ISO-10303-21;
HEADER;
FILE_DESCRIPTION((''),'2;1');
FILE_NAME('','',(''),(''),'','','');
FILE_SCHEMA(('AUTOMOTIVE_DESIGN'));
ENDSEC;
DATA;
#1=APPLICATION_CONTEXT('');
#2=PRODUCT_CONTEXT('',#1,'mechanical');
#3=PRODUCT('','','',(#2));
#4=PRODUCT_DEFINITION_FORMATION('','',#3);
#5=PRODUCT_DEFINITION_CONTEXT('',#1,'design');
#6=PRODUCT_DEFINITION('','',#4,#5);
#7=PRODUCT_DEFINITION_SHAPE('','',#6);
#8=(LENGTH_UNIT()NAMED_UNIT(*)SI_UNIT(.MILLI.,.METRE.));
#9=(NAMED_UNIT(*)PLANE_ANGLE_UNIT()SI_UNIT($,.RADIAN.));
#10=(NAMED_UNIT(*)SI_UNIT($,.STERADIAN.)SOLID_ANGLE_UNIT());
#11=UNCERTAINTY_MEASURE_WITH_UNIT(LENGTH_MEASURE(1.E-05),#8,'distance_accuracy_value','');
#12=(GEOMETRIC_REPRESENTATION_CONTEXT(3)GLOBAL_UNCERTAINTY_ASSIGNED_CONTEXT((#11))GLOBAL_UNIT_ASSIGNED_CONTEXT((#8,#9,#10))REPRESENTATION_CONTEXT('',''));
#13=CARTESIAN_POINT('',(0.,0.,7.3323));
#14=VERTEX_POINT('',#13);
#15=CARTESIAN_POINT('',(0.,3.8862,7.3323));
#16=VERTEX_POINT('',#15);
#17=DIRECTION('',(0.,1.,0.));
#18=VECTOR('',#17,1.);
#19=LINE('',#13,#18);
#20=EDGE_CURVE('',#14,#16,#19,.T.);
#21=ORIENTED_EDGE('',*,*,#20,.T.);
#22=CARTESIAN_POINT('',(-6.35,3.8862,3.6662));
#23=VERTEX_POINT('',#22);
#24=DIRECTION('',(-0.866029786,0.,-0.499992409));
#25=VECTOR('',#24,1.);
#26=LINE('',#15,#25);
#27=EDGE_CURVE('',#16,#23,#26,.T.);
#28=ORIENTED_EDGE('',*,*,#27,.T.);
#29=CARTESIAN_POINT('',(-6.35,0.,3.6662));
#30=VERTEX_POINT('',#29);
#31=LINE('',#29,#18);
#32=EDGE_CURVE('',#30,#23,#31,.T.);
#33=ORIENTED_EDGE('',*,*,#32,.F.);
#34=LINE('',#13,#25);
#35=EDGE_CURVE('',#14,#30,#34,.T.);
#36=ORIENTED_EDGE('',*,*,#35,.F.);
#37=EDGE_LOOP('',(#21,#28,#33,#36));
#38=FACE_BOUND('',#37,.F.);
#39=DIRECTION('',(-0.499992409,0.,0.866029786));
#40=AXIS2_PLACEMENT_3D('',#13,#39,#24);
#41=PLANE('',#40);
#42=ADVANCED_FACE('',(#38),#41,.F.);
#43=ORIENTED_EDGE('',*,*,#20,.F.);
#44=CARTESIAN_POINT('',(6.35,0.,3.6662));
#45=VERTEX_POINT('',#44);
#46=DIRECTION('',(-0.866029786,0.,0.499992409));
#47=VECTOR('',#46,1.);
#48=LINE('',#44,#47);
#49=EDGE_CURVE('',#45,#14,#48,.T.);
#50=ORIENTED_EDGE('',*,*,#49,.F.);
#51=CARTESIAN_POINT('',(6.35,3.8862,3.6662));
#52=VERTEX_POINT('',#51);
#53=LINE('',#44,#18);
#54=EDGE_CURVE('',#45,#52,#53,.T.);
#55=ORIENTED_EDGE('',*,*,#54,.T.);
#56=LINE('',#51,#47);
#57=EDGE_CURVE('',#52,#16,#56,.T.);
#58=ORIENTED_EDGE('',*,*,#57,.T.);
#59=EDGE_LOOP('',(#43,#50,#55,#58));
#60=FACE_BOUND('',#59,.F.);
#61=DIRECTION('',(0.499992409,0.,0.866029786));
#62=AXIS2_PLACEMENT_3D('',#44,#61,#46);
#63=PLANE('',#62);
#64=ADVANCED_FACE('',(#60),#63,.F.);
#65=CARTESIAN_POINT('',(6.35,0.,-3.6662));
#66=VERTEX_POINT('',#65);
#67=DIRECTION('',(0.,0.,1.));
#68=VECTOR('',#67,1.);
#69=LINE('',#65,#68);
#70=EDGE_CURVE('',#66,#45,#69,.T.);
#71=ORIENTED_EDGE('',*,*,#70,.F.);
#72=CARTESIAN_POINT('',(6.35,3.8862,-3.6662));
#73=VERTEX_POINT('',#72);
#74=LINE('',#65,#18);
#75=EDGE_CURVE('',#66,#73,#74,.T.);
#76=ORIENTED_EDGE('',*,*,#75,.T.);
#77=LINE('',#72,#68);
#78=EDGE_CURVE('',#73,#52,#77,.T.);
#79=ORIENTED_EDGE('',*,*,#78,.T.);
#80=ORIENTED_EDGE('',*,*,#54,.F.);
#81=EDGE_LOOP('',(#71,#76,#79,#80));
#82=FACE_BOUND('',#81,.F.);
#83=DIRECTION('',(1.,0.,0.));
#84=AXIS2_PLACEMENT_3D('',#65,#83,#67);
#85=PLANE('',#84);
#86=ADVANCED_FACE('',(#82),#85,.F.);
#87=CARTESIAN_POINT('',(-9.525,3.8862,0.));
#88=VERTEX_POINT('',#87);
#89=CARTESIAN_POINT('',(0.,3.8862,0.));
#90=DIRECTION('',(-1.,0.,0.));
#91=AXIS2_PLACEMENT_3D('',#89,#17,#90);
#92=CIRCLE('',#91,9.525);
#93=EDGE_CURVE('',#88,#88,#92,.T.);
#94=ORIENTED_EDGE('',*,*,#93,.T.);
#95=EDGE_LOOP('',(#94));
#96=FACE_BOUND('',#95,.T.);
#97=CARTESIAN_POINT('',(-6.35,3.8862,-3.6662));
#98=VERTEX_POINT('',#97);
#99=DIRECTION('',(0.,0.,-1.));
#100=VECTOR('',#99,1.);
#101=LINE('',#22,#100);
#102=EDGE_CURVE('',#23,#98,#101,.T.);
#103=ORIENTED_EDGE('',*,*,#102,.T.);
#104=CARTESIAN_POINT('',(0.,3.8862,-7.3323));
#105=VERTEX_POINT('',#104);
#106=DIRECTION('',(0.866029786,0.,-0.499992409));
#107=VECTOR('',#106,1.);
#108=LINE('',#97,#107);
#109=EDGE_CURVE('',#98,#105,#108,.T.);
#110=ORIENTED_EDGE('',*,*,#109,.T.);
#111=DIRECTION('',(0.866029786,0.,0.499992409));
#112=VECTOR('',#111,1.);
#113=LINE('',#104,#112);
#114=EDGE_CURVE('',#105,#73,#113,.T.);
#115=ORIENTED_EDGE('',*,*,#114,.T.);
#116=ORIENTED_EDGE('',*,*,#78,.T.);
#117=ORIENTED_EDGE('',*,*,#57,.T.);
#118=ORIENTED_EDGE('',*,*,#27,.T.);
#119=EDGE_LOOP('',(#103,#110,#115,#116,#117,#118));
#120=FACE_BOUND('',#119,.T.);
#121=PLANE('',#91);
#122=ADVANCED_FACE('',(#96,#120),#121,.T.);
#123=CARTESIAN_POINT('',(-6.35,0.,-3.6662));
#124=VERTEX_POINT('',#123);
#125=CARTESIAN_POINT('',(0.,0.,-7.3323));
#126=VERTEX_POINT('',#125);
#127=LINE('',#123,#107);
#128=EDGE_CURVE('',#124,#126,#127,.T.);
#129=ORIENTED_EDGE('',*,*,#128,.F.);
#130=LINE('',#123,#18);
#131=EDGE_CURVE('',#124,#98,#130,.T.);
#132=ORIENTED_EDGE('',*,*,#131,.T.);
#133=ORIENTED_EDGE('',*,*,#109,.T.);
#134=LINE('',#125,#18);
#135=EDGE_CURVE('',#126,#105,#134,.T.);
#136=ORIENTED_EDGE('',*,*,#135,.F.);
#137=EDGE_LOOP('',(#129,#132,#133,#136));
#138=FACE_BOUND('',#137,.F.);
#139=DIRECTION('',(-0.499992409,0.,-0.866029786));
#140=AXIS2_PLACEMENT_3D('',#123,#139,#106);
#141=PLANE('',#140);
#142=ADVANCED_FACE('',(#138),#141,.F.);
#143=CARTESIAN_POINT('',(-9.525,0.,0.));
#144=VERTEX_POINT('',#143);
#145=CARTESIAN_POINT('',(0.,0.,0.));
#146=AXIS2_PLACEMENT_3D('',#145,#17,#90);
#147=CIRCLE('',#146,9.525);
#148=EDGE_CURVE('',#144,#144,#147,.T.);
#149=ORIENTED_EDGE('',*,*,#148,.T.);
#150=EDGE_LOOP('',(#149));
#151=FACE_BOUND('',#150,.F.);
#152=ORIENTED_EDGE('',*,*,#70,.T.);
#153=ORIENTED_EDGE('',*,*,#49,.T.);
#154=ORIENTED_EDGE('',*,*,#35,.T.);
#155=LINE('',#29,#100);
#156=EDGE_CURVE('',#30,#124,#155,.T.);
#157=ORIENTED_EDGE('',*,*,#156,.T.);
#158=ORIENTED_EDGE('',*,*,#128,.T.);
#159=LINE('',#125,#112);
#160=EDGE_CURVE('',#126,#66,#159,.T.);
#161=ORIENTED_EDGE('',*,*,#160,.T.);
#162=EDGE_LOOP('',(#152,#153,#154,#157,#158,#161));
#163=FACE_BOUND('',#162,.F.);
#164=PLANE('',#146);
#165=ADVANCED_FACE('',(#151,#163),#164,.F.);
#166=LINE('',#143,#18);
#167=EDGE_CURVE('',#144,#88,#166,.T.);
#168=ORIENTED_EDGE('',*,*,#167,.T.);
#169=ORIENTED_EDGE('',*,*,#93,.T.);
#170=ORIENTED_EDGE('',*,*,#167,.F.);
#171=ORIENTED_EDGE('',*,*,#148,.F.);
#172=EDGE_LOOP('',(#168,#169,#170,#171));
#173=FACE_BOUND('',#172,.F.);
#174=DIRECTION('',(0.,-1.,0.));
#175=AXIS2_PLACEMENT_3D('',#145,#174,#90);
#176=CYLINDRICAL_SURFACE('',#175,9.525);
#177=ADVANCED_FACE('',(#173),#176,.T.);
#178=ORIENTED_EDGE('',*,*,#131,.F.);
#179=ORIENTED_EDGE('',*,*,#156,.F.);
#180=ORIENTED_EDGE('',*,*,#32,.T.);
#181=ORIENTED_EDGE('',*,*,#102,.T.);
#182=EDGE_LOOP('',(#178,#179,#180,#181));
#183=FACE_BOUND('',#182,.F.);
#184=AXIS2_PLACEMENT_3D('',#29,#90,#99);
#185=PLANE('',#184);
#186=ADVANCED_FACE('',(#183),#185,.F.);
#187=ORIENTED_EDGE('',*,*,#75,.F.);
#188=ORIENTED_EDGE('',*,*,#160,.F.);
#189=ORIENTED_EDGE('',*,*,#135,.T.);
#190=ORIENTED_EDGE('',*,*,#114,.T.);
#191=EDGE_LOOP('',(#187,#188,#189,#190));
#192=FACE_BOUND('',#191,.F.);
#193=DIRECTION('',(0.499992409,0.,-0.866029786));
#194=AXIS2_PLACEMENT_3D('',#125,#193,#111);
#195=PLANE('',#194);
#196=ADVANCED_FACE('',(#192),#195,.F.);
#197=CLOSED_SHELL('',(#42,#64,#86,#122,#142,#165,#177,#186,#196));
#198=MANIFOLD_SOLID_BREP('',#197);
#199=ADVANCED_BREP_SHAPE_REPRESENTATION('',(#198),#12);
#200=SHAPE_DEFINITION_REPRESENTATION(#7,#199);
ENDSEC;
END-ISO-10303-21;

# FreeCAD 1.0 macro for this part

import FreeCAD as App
import Part
import Sketcher

V = App.Vector
Q = App.Units.Quantity

doc = App.newDocument("Part")
body = doc.addObject("PartDesign::Body", "Body")

# Sketch on XZ plane
sketch1 = body.newObject("Sketcher::SketchObject", "Sketch")
sketch1.AttachmentSupport = (doc.getObject("XZ_Plane"), [""])
sketch1.MapMode = "FlatFace"
sketch1.addGeometry([
    Part.Circle(V(0, 0, 0), V(0, 0, 1), 9.525),  # 0
    Part.LineSegment(V(-6.35, -3.6662, 0), V(0, -7.3323, 0)),  # 1
    Part.LineSegment(V(0, -7.3323, 0), V(6.35, -3.6662, 0)),  # 2
    Part.LineSegment(V(6.35, -3.6662, 0), V(6.35, 3.6662, 0)),  # 3
    Part.LineSegment(V(6.35, 3.6662, 0), V(0, 7.3323, 0)),  # 4
    Part.LineSegment(V(0, 7.3323, 0), V(-6.35, 3.6662, 0)),  # 5
    Part.LineSegment(V(-6.35, 3.6662, 0), V(-6.35, -3.6662, 0)),  # 6
], False)
sketch1.addConstraint([
    Sketcher.Constraint("Coincident", 1, 2, 2, 1),
    Sketcher.Constraint("Coincident", 2, 2, 3, 1),
    Sketcher.Constraint("Coincident", 3, 2, 4, 1),
    Sketcher.Constraint("Coincident", 4, 2, 5, 1),
    Sketcher.Constraint("Coincident", 5, 2, 6, 1),
    Sketcher.Constraint("Coincident", 6, 2, 1, 1),
    Sketcher.Constraint("Vertical", 3),
    Sketcher.Constraint("Vertical", 6),
    Sketcher.Constraint("Coincident", 0, 3, -1, 1),
    Sketcher.Constraint("Symmetric", 1, 2, 4, 2, -1, 1),
    Sketcher.Constraint("Symmetric", 2, 2, 5, 2, -1, 1),
    Sketcher.Constraint("PointOnObject", 1, 2, -2),
    Sketcher.Constraint("Parallel", 1, 4),
    Sketcher.Constraint("Horizontal", 3, 2, 5, 2),
    Sketcher.Constraint("Diameter", 0, Q("0.75 in")),
    Sketcher.Constraint("DistanceX", 5, 2, 3, 2, Q("0.5 in")),
    Sketcher.Constraint("Angle", 1, Q("-29.9995 deg")),
    Sketcher.Constraint("DistanceY", 1, 2, 3, 2, Q("0.433 in")),
])
pad1 = body.newObject("PartDesign::Pad", "Pad")
pad1.Profile = sketch1
pad1.Length = Q("0.153 in")
pad1.Reversed = True

doc.recompute()
